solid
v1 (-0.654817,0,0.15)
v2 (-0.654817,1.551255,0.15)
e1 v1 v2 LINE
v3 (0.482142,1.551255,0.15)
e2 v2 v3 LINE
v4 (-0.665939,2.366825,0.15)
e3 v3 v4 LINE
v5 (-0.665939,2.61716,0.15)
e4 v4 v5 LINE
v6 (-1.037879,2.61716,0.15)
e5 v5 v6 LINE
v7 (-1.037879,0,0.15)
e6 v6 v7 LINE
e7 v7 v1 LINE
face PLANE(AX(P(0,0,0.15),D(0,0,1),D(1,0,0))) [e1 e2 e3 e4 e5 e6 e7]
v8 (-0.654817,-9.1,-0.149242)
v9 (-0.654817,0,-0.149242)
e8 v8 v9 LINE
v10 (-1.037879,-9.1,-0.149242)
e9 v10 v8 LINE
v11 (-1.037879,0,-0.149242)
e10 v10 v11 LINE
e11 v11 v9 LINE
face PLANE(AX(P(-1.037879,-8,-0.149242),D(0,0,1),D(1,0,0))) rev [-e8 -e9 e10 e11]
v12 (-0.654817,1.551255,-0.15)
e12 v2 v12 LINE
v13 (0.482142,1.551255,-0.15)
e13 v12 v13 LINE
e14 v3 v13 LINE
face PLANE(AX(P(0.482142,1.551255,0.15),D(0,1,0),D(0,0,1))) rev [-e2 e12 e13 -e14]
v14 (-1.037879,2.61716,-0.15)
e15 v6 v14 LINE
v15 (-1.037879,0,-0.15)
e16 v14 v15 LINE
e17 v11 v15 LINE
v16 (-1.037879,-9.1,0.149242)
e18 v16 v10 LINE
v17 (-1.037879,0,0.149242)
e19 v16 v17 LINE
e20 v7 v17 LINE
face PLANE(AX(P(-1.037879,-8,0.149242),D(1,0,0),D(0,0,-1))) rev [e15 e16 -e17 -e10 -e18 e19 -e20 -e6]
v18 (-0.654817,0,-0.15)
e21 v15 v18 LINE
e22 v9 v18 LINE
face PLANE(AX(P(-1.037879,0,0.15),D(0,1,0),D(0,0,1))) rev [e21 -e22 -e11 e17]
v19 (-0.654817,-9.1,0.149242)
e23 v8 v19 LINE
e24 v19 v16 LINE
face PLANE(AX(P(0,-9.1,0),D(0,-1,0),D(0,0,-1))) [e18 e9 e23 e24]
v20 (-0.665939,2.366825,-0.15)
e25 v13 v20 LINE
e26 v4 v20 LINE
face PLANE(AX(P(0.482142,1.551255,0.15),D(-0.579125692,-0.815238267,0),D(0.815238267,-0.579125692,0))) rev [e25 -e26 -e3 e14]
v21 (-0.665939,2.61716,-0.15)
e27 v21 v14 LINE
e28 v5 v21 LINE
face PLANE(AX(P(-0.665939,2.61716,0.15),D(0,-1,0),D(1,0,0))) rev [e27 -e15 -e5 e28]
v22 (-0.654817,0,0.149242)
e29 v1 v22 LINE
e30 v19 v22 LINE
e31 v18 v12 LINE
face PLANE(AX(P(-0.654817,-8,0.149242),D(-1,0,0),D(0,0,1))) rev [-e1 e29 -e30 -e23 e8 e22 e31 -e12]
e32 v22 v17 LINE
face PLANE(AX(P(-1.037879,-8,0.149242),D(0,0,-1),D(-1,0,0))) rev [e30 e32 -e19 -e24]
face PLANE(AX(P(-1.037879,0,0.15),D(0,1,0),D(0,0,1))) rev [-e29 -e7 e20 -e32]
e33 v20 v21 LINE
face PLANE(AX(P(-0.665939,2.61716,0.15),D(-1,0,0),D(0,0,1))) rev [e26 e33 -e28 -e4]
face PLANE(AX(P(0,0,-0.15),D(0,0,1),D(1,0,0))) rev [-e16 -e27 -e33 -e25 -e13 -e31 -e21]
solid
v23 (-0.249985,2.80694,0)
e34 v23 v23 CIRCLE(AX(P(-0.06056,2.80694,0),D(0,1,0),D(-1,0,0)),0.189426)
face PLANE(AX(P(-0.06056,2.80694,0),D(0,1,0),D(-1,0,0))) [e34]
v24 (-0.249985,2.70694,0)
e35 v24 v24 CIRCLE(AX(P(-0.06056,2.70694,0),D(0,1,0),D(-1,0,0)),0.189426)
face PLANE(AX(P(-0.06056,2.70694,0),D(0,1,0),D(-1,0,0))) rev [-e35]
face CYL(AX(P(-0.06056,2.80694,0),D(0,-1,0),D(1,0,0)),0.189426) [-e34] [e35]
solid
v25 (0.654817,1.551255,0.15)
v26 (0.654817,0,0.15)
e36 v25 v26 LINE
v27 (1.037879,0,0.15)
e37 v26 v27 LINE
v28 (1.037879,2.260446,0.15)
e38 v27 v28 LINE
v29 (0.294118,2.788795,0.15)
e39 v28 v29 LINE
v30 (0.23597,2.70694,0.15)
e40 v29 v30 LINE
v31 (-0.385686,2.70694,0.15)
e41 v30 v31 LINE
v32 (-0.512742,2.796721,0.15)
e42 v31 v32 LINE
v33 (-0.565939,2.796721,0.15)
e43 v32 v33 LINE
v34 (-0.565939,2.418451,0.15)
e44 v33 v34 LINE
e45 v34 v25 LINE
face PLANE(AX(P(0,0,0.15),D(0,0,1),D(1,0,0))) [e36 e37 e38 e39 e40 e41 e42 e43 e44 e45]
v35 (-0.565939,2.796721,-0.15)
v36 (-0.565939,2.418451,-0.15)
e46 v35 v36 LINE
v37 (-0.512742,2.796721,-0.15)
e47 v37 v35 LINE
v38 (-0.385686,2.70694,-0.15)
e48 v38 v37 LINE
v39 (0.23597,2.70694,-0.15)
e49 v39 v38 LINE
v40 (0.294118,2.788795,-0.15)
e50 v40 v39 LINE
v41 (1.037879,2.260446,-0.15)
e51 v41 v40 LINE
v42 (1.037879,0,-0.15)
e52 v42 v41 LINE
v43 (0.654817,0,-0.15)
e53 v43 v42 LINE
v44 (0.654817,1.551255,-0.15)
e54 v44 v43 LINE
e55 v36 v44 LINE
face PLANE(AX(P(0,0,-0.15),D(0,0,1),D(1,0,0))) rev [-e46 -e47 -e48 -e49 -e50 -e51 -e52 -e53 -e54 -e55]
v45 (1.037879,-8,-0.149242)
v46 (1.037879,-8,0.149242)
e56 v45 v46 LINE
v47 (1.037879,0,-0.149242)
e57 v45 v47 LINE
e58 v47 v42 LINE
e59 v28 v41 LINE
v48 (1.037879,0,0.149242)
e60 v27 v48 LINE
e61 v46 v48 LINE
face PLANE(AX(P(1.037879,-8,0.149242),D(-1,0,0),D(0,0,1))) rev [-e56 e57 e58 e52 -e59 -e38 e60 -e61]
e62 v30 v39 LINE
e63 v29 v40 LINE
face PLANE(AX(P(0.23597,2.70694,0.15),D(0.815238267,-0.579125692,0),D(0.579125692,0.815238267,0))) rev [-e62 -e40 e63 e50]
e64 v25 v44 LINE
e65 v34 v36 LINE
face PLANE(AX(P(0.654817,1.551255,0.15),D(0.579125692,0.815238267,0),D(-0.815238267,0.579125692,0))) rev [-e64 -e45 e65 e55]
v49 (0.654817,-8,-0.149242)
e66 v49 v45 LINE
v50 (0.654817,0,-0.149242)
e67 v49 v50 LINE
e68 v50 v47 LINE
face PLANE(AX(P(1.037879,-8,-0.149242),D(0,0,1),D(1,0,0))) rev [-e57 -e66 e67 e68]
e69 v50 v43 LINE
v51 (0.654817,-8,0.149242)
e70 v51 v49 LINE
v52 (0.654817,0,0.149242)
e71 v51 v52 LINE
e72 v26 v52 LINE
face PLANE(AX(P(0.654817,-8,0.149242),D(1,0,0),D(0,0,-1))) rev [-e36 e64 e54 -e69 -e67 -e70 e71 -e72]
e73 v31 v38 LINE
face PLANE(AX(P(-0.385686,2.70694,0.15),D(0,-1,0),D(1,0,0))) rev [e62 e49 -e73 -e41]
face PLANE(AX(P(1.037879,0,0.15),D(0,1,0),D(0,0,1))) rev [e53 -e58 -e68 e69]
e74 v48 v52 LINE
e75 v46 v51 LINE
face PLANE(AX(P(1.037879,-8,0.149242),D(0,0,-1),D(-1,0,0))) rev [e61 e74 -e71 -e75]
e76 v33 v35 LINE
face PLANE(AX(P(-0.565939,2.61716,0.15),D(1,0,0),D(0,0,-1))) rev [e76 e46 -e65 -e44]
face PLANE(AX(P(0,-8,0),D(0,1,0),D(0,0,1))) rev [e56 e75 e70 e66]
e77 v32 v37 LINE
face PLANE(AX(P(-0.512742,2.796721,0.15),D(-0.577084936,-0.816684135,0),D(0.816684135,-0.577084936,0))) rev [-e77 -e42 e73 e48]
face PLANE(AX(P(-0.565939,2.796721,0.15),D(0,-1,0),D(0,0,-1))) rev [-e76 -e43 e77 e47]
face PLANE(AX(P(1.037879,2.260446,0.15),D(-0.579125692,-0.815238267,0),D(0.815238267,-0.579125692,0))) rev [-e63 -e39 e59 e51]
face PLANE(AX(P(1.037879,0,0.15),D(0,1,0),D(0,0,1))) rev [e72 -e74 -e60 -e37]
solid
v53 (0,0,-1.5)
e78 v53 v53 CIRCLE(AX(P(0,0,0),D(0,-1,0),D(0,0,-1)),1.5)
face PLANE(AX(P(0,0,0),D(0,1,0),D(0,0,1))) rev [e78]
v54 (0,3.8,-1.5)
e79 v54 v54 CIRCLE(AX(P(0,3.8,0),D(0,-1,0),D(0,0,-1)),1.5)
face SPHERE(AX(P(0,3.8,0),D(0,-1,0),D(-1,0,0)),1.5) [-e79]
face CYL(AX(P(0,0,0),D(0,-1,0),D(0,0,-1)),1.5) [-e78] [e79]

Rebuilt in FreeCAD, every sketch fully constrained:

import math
import FreeCAD as App
import Part
import Sketcher
from FreeCAD import Vector
Q = App.Units.Quantity

doc = App.newDocument("Part")
body = doc.addObject("PartDesign::Body", "Body")

# Sketch on XY plane
sketch1 = body.newObject("Sketcher::SketchObject", "Sketch")
sketch1.AttachmentSupport = (doc.getObject("XY_Plane"), [""])
sketch1.MapMode = "FlatFace"
sketch1.addGeometry(Part.LineSegment(Vector(-1.5, 0, 0), Vector(0, 0, 0)), False)
sketch1.addGeometry(Part.LineSegment(Vector(0, 0, 0), Vector(0, 5.3, 0)), False)
sketch1.addGeometry(Part.ArcOfCircle(Part.Circle(Vector(0, 3.8, 0), Vector(0, 0, 1), 1.5), math.radians(90), math.radians(180)), False)
sketch1.addGeometry(Part.LineSegment(Vector(-1.5, 3.8, 0), Vector(-1.5, 0, 0)), False)
sketch1.addConstraint(Sketcher.Constraint("Coincident", 0, 2, 1, 1))
sketch1.addConstraint(Sketcher.Constraint("Coincident", 1, 2, 2, 1))
sketch1.addConstraint(Sketcher.Constraint("Tangent", 2, 2, 3, 1))
sketch1.addConstraint(Sketcher.Constraint("Coincident", 3, 2, 0, 1))
sketch1.addConstraint(Sketcher.Constraint("Horizontal", 0))
sketch1.addConstraint(Sketcher.Constraint("Vertical", 1))
sketch1.addConstraint(Sketcher.Constraint("Vertical", 3))
sketch1.addConstraint(Sketcher.Constraint("Coincident", 0, 2, -1, 1))
sketch1.addConstraint(Sketcher.Constraint("PointOnObject", 2, 3, -2))
sketch1.addConstraint(Sketcher.Constraint("Radius", 2, Q("1.5 mm")))
sketch1.addConstraint(Sketcher.Constraint("DistanceY", 1, 1, 1, 2, Q("5.3 mm")))
revolution = body.newObject("PartDesign::Revolution", "Revolution")
revolution.Profile = sketch1
revolution.ReferenceAxis = (sketch1, ["V_Axis"])
revolution.Angle = 360
body2 = doc.addObject("PartDesign::Body", "Body001")

# Sketch on XZ plane
sketch2 = body2.newObject("Sketcher::SketchObject", "Sketch001")
sketch2.AttachmentSupport = (doc.getObject("XZ_Plane001"), [""])
sketch2.MapMode = "FlatFace"
sketch2.addGeometry(Part.LineSegment(Vector(-1.04, 0.15, 0), Vector(-1.04, -0.15, 0)), False)
sketch2.addGeometry(Part.LineSegment(Vector(-1.04, -0.15, 0), Vector(-0.65, -0.15, 0)), False)
sketch2.addGeometry(Part.LineSegment(Vector(-0.65, -0.15, 0), Vector(-0.65, 0.15, 0)), False)
sketch2.addGeometry(Part.LineSegment(Vector(-0.65, 0.15, 0), Vector(-1.04, 0.15, 0)), False)
sketch2.addConstraint(Sketcher.Constraint("Coincident", 0, 2, 1, 1))
sketch2.addConstraint(Sketcher.Constraint("Coincident", 1, 2, 2, 1))
sketch2.addConstraint(Sketcher.Constraint("Coincident", 2, 2, 3, 1))
sketch2.addConstraint(Sketcher.Constraint("Coincident", 3, 2, 0, 1))
sketch2.addConstraint(Sketcher.Constraint("Vertical", 0))
sketch2.addConstraint(Sketcher.Constraint("Horizontal", 1))
sketch2.addConstraint(Sketcher.Constraint("Vertical", 2))
sketch2.addConstraint(Sketcher.Constraint("Horizontal", 3))
sketch2.addConstraint(Sketcher.Constraint("DistanceX", 1, 1, 1, 2, Q("0.383062 mm")))
sketch2.addConstraint(Sketcher.Constraint("DistanceY", 0, 2, 0, 1, Q("0.298485 mm")))
sketch2.addConstraint(Sketcher.Constraint("DistanceX", 0, 2, -1, 1, Q("1.037879 mm")))
sketch2.addConstraint(Sketcher.Constraint("DistanceY", 0, 2, -1, 1, Q("0.149242 mm")))
pad1 = body2.newObject("PartDesign::Pad", "Pad")
pad1.Profile = sketch2
pad1.Length = 8
body3 = doc.addObject("PartDesign::Body", "Body002")
body3.AllowCompound = True

# Sketch on XZ plane
sketch3 = body3.newObject("Sketcher::SketchObject", "Sketch002")
sketch3.AttachmentSupport = (doc.getObject("XZ_Plane002"), [""])
sketch3.MapMode = "FlatFace"
sketch3.addGeometry(Part.LineSegment(Vector(0.65, 0.15, 0), Vector(0.65, -0.15, 0)), False)
sketch3.addGeometry(Part.LineSegment(Vector(0.65, -0.15, 0), Vector(1.04, -0.15, 0)), False)
sketch3.addGeometry(Part.LineSegment(Vector(1.04, -0.15, 0), Vector(1.04, 0.15, 0)), False)
sketch3.addGeometry(Part.LineSegment(Vector(1.04, 0.15, 0), Vector(0.65, 0.15, 0)), False)
sketch3.addConstraint(Sketcher.Constraint("Coincident", 0, 2, 1, 1))
sketch3.addConstraint(Sketcher.Constraint("Coincident", 1, 2, 2, 1))
sketch3.addConstraint(Sketcher.Constraint("Coincident", 2, 2, 3, 1))
sketch3.addConstraint(Sketcher.Constraint("Coincident", 3, 2, 0, 1))
sketch3.addConstraint(Sketcher.Constraint("Vertical", 0))
sketch3.addConstraint(Sketcher.Constraint("Horizontal", 1))
sketch3.addConstraint(Sketcher.Constraint("Vertical", 2))
sketch3.addConstraint(Sketcher.Constraint("Horizontal", 3))
sketch3.addConstraint(Sketcher.Constraint("DistanceX", 1, 1, 1, 2, Q("0.383062 mm")))
sketch3.addConstraint(Sketcher.Constraint("DistanceY", 0, 2, 0, 1, Q("0.298485 mm")))
sketch3.addConstraint(Sketcher.Constraint("DistanceX", -1, 1, 1, 2, Q("1.037879 mm")))
sketch3.addConstraint(Sketcher.Constraint("DistanceY", 0, 2, -1, 1, Q("0.149242 mm")))
pad2 = body3.newObject("PartDesign::Pad", "Pad001")
pad2.Profile = sketch3
pad2.Length = 8
doc.recompute()

boolean = body3.newObject("PartDesign::Boolean", "Boolean")
boolean.Type = "Fuse"
boolean.addObjects([body2])

# Sketch on XY plane
sketch4 = body3.newObject("Sketcher::SketchObject", "Sketch003")
sketch4.AttachmentSupport = (doc.getObject("XY_Plane002"), [""])
sketch4.MapMode = "FlatFace"
sketch4.addGeometry(Part.LineSegment(Vector(1.04, 2.26, 0), Vector(0.29, 2.79, 0)), False)
sketch4.addGeometry(Part.LineSegment(Vector(0.29, 2.79, 0), Vector(0.24, 2.71, 0)), False)
sketch4.addGeometry(Part.LineSegment(Vector(0.24, 2.71, 0), Vector(-0.39, 2.71, 0)), False)
sketch4.addGeometry(Part.LineSegment(Vector(-0.39, 2.71, 0), Vector(-0.51, 2.8, 0)), False)
sketch4.addGeometry(Part.LineSegment(Vector(-0.51, 2.8, 0), Vector(-0.57, 2.8, 0)), False)
sketch4.addGeometry(Part.LineSegment(Vector(-0.57, 2.8, 0), Vector(-0.57, 2.42, 0)), False)
sketch4.addGeometry(Part.LineSegment(Vector(-0.57, 2.42, 0), Vector(0.65, 1.55, 0)), False)
sketch4.addGeometry(Part.LineSegment(Vector(0.65, 1.55, 0), Vector(0.65, 0, 0)), False)
sketch4.addGeometry(Part.LineSegment(Vector(0.65, 0, 0), Vector(1.04, 0, 0)), False)
sketch4.addGeometry(Part.LineSegment(Vector(1.04, 0, 0), Vector(1.04, 2.26, 0)), False)
sketch4.addGeometry(Part.LineSegment(Vector(0.48, 1.55, 0), Vector(-0.67, 2.37, 0)), False)
sketch4.addGeometry(Part.LineSegment(Vector(-0.67, 2.37, 0), Vector(-0.67, 2.62, 0)), False)
sketch4.addGeometry(Part.LineSegment(Vector(-0.67, 2.62, 0), Vector(-1.04, 2.62, 0)), False)
sketch4.addGeometry(Part.LineSegment(Vector(-1.04, 2.62, 0), Vector(-1.04, 0, 0)), False)
sketch4.addGeometry(Part.LineSegment(Vector(-1.04, 0, 0), Vector(-0.65, 0, 0)), False)
sketch4.addGeometry(Part.LineSegment(Vector(-0.65, 0, 0), Vector(-0.65, 1.55, 0)), False)
sketch4.addGeometry(Part.LineSegment(Vector(-0.65, 1.55, 0), Vector(0.48, 1.55, 0)), False)
sketch4.addConstraint(Sketcher.Constraint("Coincident", 0, 2, 1, 1))
sketch4.addConstraint(Sketcher.Constraint("Coincident", 1, 2, 2, 1))
sketch4.addConstraint(Sketcher.Constraint("Coincident", 2, 2, 3, 1))
sketch4.addConstraint(Sketcher.Constraint("Coincident", 3, 2, 4, 1))
sketch4.addConstraint(Sketcher.Constraint("Coincident", 4, 2, 5, 1))
sketch4.addConstraint(Sketcher.Constraint("Coincident", 5, 2, 6, 1))
sketch4.addConstraint(Sketcher.Constraint("Coincident", 6, 2, 7, 1))
sketch4.addConstraint(Sketcher.Constraint("Coincident", 7, 2, 8, 1))
sketch4.addConstraint(Sketcher.Constraint("Coincident", 8, 2, 9, 1))
sketch4.addConstraint(Sketcher.Constraint("Coincident", 9, 2, 0, 1))
sketch4.addConstraint(Sketcher.Constraint("Coincident", 10, 2, 11, 1))
sketch4.addConstraint(Sketcher.Constraint("Coincident", 11, 2, 12, 1))
sketch4.addConstraint(Sketcher.Constraint("Coincident", 12, 2, 13, 1))
sketch4.addConstraint(Sketcher.Constraint("Coincident", 13, 2, 14, 1))
sketch4.addConstraint(Sketcher.Constraint("Coincident", 14, 2, 15, 1))
sketch4.addConstraint(Sketcher.Constraint("Coincident", 15, 2, 16, 1))
sketch4.addConstraint(Sketcher.Constraint("Coincident", 16, 2, 10, 1))
sketch4.addConstraint(Sketcher.Constraint("Horizontal", 2))
sketch4.addConstraint(Sketcher.Constraint("Horizontal", 4))
sketch4.addConstraint(Sketcher.Constraint("Vertical", 5))
sketch4.addConstraint(Sketcher.Constraint("Vertical", 7))
sketch4.addConstraint(Sketcher.Constraint("Horizontal", 8))
sketch4.addConstraint(Sketcher.Constraint("Vertical", 9))
sketch4.addConstraint(Sketcher.Constraint("Vertical", 11))
sketch4.addConstraint(Sketcher.Constraint("Horizontal", 12))
sketch4.addConstraint(Sketcher.Constraint("Vertical", 13))
sketch4.addConstraint(Sketcher.Constraint("Horizontal", 14))
sketch4.addConstraint(Sketcher.Constraint("Vertical", 15))
sketch4.addConstraint(Sketcher.Constraint("Horizontal", 16))
sketch4.addConstraint(Sketcher.Constraint("Symmetric", 8, 2, 13, 2, -1, 1))
sketch4.addConstraint(Sketcher.Constraint("Symmetric", 7, 2, 14, 2, -2))
sketch4.addConstraint(Sketcher.Constraint("Perpendicular", 0, 1))
sketch4.addConstraint(Sketcher.Constraint("Perpendicular", 1, 6))
sketch4.addConstraint(Sketcher.Constraint("Parallel", 6, 10))
sketch4.addConstraint(Sketcher.Constraint("Horizontal", 6, 2, 15, 2))
sketch4.addConstraint(Sketcher.Constraint("DistanceX", 10, 2, 5, 2, Q("0.1 mm")))
sketch4.addConstraint(Sketcher.Constraint("DistanceX", 12, 2, 12, 1, Q("0.371939 mm")))
sketch4.addConstraint(Sketcher.Constraint("DistanceX", 16, 1, 16, 2, Q("1.136959 mm")))
sketch4.addConstraint(Sketcher.Constraint("DistanceY", 5, 2, 5, 1, Q("0.37827 mm")))
sketch4.addConstraint(Sketcher.Constraint("DistanceY", 13, 2, 13, 1, Q("2.61716 mm")))
sketch4.addConstraint(Sketcher.Constraint("DistanceX", 0, 2, 6, 2, Q("0.360699 mm")))
sketch4.addConstraint(Sketcher.Constraint("DistanceX", 2, 2, 2, 1, Q("0.621655 mm")))
sketch4.addConstraint(Sketcher.Constraint("DistanceX", 4, 2, 4, 1, Q("0.053197 mm")))
sketch4.addConstraint(Sketcher.Constraint("DistanceX", 8, 1, 8, 2, Q("0.383062 mm")))
sketch4.addConstraint(Sketcher.Constraint("DistanceY", 7, 2, 7, 1, Q("1.551255 mm")))
sketch4.addConstraint(Sketcher.Constraint("DistanceY", 9, 1, 9, 2, Q("2.260446 mm")))
sketch4.addConstraint(Sketcher.Constraint("DistanceY", 11, 1, 11, 2, Q("0.250335 mm")))
sketch4.addConstraint(Sketcher.Constraint("DistanceX", -1, 1, 1, 2, Q("0.23597 mm")))
sketch4.addConstraint(Sketcher.Constraint("DistanceY", -1, 1, 1, 2, Q("2.70694 mm")))
pad3 = body3.newObject("PartDesign::Pad", "Pad002")
pad3.Profile = sketch4
pad3.Length = 0.3
pad3.Midplane = True

# Sketch on XZ plane
sketch5 = body3.newObject("Sketcher::SketchObject", "Sketch004")
sketch5.AttachmentSupport = (doc.getObject("XZ_Plane002"), [""])
sketch5.MapMode = "FlatFace"
sketch5.AttachmentOffset = App.Placement(Vector(0, 0, 8), App.Rotation())
sketch5.addGeometry(Part.LineSegment(Vector(-1.04, 0.15, 0), Vector(-1.04, -0.15, 0)), False)
sketch5.addGeometry(Part.LineSegment(Vector(-1.04, -0.15, 0), Vector(-0.65, -0.15, 0)), False)
sketch5.addGeometry(Part.LineSegment(Vector(-0.65, -0.15, 0), Vector(-0.65, 0.15, 0)), False)
sketch5.addGeometry(Part.LineSegment(Vector(-0.65, 0.15, 0), Vector(-1.04, 0.15, 0)), False)
sketch5.addConstraint(Sketcher.Constraint("Coincident", 0, 2, 1, 1))
sketch5.addConstraint(Sketcher.Constraint("Coincident", 1, 2, 2, 1))
sketch5.addConstraint(Sketcher.Constraint("Coincident", 2, 2, 3, 1))
sketch5.addConstraint(Sketcher.Constraint("Coincident", 3, 2, 0, 1))
sketch5.addConstraint(Sketcher.Constraint("Vertical", 0))
sketch5.addConstraint(Sketcher.Constraint("Horizontal", 1))
sketch5.addConstraint(Sketcher.Constraint("Vertical", 2))
sketch5.addConstraint(Sketcher.Constraint("Horizontal", 3))
sketch5.addConstraint(Sketcher.Constraint("DistanceX", 1, 1, 1, 2, Q("0.383062 mm")))
sketch5.addConstraint(Sketcher.Constraint("DistanceY", 0, 2, 0, 1, Q("0.298485 mm")))
sketch5.addConstraint(Sketcher.Constraint("DistanceX", 0, 2, -1, 1, Q("1.037879 mm")))
sketch5.addConstraint(Sketcher.Constraint("DistanceY", 0, 2, -1, 1, Q("0.149242 mm")))
pad4 = body3.newObject("PartDesign::Pad", "Pad003")
pad4.Profile = sketch5
pad4.Length = 1.1
body4 = doc.addObject("PartDesign::Body", "Body003")

# Sketch on XZ plane
sketch6 = body4.newObject("Sketcher::SketchObject", "Sketch005")
sketch6.AttachmentSupport = (doc.getObject("XZ_Plane003"), [""])
sketch6.MapMode = "FlatFace"
sketch6.AttachmentOffset = App.Placement(Vector(0, 0, -2.70694), App.Rotation())
sketch6.addGeometry(Part.Circle(Vector(-0.06, 0, 0), Vector(0, 0, 1), 0.19), False)
sketch6.addConstraint(Sketcher.Constraint("PointOnObject", 0, 3, -1))
sketch6.addConstraint(Sketcher.Constraint("Diameter", 0, Q("0.378852 mm")))
sketch6.addConstraint(Sketcher.Constraint("DistanceX", 0, 3, -1, 1, Q("0.06056 mm")))
pad5 = body4.newObject("PartDesign::Pad", "Pad004")
pad5.Profile = sketch6
pad5.Length = 0.1
pad5.Reversed = True

doc.recompute()
